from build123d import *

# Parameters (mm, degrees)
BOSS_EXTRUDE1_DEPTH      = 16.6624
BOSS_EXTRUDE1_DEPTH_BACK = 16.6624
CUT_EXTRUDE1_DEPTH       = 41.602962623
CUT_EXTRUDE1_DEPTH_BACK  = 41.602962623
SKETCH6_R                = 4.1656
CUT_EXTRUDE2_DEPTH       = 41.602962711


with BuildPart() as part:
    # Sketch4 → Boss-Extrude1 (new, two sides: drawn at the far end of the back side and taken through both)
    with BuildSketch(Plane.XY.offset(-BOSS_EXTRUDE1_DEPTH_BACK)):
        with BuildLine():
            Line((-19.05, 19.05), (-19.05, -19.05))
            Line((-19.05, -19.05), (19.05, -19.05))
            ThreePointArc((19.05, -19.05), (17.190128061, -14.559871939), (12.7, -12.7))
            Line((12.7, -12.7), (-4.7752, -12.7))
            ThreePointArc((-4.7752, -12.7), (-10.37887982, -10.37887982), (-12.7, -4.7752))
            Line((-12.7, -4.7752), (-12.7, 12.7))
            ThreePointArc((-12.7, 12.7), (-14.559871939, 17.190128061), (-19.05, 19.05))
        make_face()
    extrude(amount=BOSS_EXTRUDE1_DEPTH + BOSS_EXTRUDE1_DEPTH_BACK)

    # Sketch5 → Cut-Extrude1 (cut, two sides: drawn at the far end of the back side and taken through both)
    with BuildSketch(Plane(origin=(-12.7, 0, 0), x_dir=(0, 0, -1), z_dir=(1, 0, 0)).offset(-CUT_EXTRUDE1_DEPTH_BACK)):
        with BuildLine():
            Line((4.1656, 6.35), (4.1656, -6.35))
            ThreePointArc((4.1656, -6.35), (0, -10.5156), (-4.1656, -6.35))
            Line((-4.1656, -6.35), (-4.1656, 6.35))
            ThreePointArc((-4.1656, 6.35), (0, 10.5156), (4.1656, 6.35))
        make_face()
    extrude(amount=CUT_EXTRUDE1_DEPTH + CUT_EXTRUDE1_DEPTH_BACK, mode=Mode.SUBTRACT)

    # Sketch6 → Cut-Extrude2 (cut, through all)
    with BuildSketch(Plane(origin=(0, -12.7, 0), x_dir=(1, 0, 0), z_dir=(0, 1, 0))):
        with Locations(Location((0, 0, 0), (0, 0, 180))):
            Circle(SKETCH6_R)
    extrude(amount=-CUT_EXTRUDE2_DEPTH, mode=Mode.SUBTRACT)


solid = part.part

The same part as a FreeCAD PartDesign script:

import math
import FreeCAD as App
import Part
import Sketcher
Q = App.Units.Quantity

doc = App.newDocument("Part")
params = doc.addObject("Spreadsheet::Sheet", "Params")
for row, (alias, value) in enumerate([
    ("sketch1_radius", "0.25 in"),
    ("sketch1_width", "1.5 in"),
    ("sketch1_radius2", "0.312 in"),
    ("pad1_length", "0.656 in"),
    ("pad1_length2", "0.656 in"),
    ("sketch2_width", "0.5 in"),
    ("sketch2_radius", "0.164 in"),
    ("sketch3_diameter", "0.328 in"),
], start=1):
    params.set(f"A{row}", alias)
    params.set(f"B{row}", "=" + value)
    params.setAlias(f"B{row}", alias)

body = doc.addObject("PartDesign::Body", "Body")

# Sketch on XY plane
sketch1 = doc.addObject("Sketcher::SketchObject", "Sketch")
body.addObject(sketch1)
sketch1.AttachmentSupport = (doc.XY_Plane, [""])
sketch1.MapMode = "FlatFace"
sketch1.addGeometry(Part.LineSegment(App.Vector(-19.05, 19.05, 0), App.Vector(-19.05, -19.05, 0)), False)
sketch1.addGeometry(Part.LineSegment(App.Vector(-19.05, -19.05, 0), App.Vector(19.05, -19.05, 0)), False)
sketch1.addGeometry(Part.ArcOfCircle(Part.Circle(App.Vector(12.7, -19.05, 0), App.Vector(0, 0, 1), 6.35), math.radians(0), math.radians(90)), False)
sketch1.addGeometry(Part.LineSegment(App.Vector(12.7, -12.7, 0), App.Vector(-4.7752, -12.7, 0)), False)
sketch1.addGeometry(Part.ArcOfCircle(Part.Circle(App.Vector(-4.7752, -4.7752, 0), App.Vector(0, 0, 1), 7.9248), math.radians(180), math.radians(270)), False)
sketch1.addGeometry(Part.LineSegment(App.Vector(-12.7, -4.7752, 0), App.Vector(-12.7, 12.7, 0)), False)
sketch1.addGeometry(Part.ArcOfCircle(Part.Circle(App.Vector(-19.05, 12.7, 0), App.Vector(0, 0, 1), 6.35), math.radians(0), math.radians(90)), False)
sketch1.addConstraint(Sketcher.Constraint("Coincident", 0, 2, 1, 1))
sketch1.addConstraint(Sketcher.Constraint("Coincident", 1, 2, 2, 1))
sketch1.addConstraint(Sketcher.Constraint("Tangent", 2, 2, 3, 1))
sketch1.addConstraint(Sketcher.Constraint("Tangent", 3, 2, 4, 2))
sketch1.addConstraint(Sketcher.Constraint("Tangent", 4, 1, 5, 1))
sketch1.addConstraint(Sketcher.Constraint("Tangent", 5, 2, 6, 1))
sketch1.addConstraint(Sketcher.Constraint("Coincident", 6, 2, 0, 1))
sketch1.addConstraint(Sketcher.Constraint("Vertical", 0))
sketch1.addConstraint(Sketcher.Constraint("Horizontal", 1))
sketch1.addConstraint(Sketcher.Constraint("Horizontal", 3))
sketch1.addConstraint(Sketcher.Constraint("Vertical", 5))
sketch1.addConstraint(Sketcher.Constraint("Equal", 2, 6))
sketch1.addConstraint(Sketcher.Constraint("Symmetric", 2, 2, 5, 2, -1, 1))
sketch1.addConstraint(Sketcher.Constraint("Symmetric", 1, 2, 6, 2, -1, 1))
sketch1.addConstraint(Sketcher.Constraint("Equal", 1, 0))
sketch1.addConstraint(Sketcher.Constraint("Radius", 2, Q("0.25 in")))
sketch1.addConstraint(Sketcher.Constraint("DistanceX", 1, 1, 1, 2, Q("1.5 in")))
sketch1.addConstraint(Sketcher.Constraint("Radius", 4, Q("0.312 in")))
sketch1.setExpression("Constraints[15]", "Params.sketch1_radius")
sketch1.setExpression("Constraints[16]", "Params.sketch1_width")
sketch1.setExpression("Constraints[17]", "Params.sketch1_radius2")
pad1 = doc.addObject("PartDesign::Pad", "Pad")
body.addObject(pad1)
pad1.Profile = sketch1
pad1.Type = "TwoLengths"
pad1.setExpression("Length", "Params.pad1_length")
pad1.setExpression("Length2", "Params.pad1_length2")

# Sketch on YZ plane
sketch2 = doc.addObject("Sketcher::SketchObject", "Sketch001")
body.addObject(sketch2)
sketch2.AttachmentSupport = (doc.YZ_Plane, [""])
sketch2.MapMode = "FlatFace"
sketch2.AttachmentOffset = App.Placement(App.Vector(0, 0, -0.5 * 25.4), App.Rotation())
sketch2.addGeometry(Part.LineSegment(App.Vector(-6.35, -4.1656, 0), App.Vector(6.35, -4.1656, 0)), False)
sketch2.addGeometry(Part.ArcOfCircle(Part.Circle(App.Vector(6.35, 0, 0), App.Vector(0, 0, 1), 4.1656), math.radians(-90), math.radians(90)), False)
sketch2.addGeometry(Part.LineSegment(App.Vector(6.35, 4.1656, 0), App.Vector(-6.35, 4.1656, 0)), False)
sketch2.addGeometry(Part.ArcOfCircle(Part.Circle(App.Vector(-6.35, 0, 0), App.Vector(0, 0, 1), 4.1656), math.radians(90), math.radians(270)), False)
sketch2.addConstraint(Sketcher.Constraint("Tangent", 0, 2, 1, 1))
sketch2.addConstraint(Sketcher.Constraint("Tangent", 1, 2, 2, 1))
sketch2.addConstraint(Sketcher.Constraint("Tangent", 2, 2, 3, 1))
sketch2.addConstraint(Sketcher.Constraint("Tangent", 3, 2, 0, 1))
sketch2.addConstraint(Sketcher.Constraint("Horizontal", 0))
sketch2.addConstraint(Sketcher.Constraint("Horizontal", 2))
sketch2.addConstraint(Sketcher.Constraint("Symmetric", 1, 3, 3, 3, -1, 1))
sketch2.addConstraint(Sketcher.Constraint("DistanceX", 0, 1, 0, 2, Q("0.5 in")))
sketch2.addConstraint(Sketcher.Constraint("Radius", 1, Q("0.164 in")))
sketch2.setExpression("Constraints[7]", "Params.sketch2_width")
sketch2.setExpression("Constraints[8]", "Params.sketch2_radius")
pocket1 = doc.addObject("PartDesign::Pocket", "Pocket")
body.addObject(pocket1)
pocket1.Profile = sketch2
pocket1.Type = "ThroughAll"
pocket1.Midplane = True

# Sketch on XZ plane
sketch3 = doc.addObject("Sketcher::SketchObject", "Sketch002")
body.addObject(sketch3)
sketch3.AttachmentSupport = (doc.XZ_Plane, [""])
sketch3.MapMode = "FlatFace"
sketch3.AttachmentOffset = App.Placement(App.Vector(0, 0, 0.5 * 25.4), App.Rotation())
sketch3.addGeometry(Part.Circle(App.Vector(0, 0, 0), App.Vector(0, 0, 1), 4.1656), False)
sketch3.addConstraint(Sketcher.Constraint("Coincident", 0, 3, -1, 1))
sketch3.addConstraint(Sketcher.Constraint("Diameter", 0, Q("0.328 in")))
sketch3.setExpression("Constraints[1]", "Params.sketch3_diameter")
pocket2 = doc.addObject("PartDesign::Pocket", "Pocket001")
body.addObject(pocket2)
pocket2.Profile = sketch3
pocket2.Type = "ThroughAll"
pocket2.Reversed = True

doc.recompute()
